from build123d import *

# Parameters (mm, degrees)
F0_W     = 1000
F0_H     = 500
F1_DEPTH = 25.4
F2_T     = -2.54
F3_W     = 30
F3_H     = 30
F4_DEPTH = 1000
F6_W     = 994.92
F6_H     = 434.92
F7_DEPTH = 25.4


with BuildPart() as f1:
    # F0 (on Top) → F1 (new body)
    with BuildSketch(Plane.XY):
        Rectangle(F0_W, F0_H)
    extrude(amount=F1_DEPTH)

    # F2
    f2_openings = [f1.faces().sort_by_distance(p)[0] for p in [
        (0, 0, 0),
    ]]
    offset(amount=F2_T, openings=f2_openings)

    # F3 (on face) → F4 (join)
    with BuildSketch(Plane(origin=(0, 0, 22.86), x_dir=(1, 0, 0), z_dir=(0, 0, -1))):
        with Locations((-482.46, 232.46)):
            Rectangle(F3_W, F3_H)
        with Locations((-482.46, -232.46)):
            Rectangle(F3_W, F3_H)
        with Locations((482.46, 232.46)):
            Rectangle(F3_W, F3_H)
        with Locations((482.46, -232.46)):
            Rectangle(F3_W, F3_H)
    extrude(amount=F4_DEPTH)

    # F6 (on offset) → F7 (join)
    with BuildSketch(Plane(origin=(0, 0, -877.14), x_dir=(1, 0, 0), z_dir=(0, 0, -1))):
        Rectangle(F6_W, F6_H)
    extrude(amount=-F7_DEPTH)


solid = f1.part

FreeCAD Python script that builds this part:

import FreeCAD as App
import Part
import Sketcher
from FreeCAD import Vector
Q = App.Units.Quantity


def faces_at(feature, points):
    """Names of the faces that lie closest to the given points."""
    faces = feature.Shape.Faces
    near = lambda p: min(range(len(faces)), key=lambda i: faces[i].distToShape(Part.Vertex(*p))[0])
    return sorted({f"Face{near(p) + 1}" for p in points})


def add_polygon(sketch, points):
    """Adds a closed chain of lines whose ends are joined by coincident constraints."""
    first, n = sketch.GeometryCount, len(points)
    for a, b in zip(points, points[1:] + points[:1]):
        sketch.addGeometry(Part.LineSegment(App.Vector(*a, 0), App.Vector(*b, 0)), False)
    for i in range(n):
        sketch.addConstraint(Sketcher.Constraint("Coincident", first + i, 2, first + (i + 1) % n, 1))

doc = App.newDocument("Part")
body = doc.addObject("PartDesign::Body", "Body")

sketch1 = body.newObject("Sketcher::SketchObject", "Sketch")
sketch1.AttachmentSupport = (doc.getObject("XY_Plane"), [""])
sketch1.MapMode = "FlatFace"
add_polygon(sketch1, [(-500, 250), (-500, -250), (500, -250), (500, 250)])
sketch1.addConstraint([
    Sketcher.Constraint("Vertical", 0),
    Sketcher.Constraint("Horizontal", 1),
    Sketcher.Constraint("Vertical", 2),
    Sketcher.Constraint("Horizontal", 3),
    Sketcher.Constraint("Symmetric", 0, 2, 2, 2, -1, 1),
    Sketcher.Constraint("DistanceX", 1, 1, 1, 2, Q("1000 mm")),
    Sketcher.Constraint("DistanceY", 0, 2, 0, 1, Q("500 mm")),
])
pad1 = body.newObject("PartDesign::Pad", "Pad")
pad1.Profile = sketch1
pad1.Length = 25.4
doc.recompute()

thickness = body.newObject("PartDesign::Thickness", "Thickness")
thickness.Base = (pad1, faces_at(pad1, [(0, 0, 0)]))
thickness.Value = 2.54
thickness.Reversed = True
thickness.Join = "Arc"

sketch2 = body.newObject("Sketcher::SketchObject", "Sketch001")
sketch2.AttachmentSupport = (doc.getObject("XY_Plane"), [""])
sketch2.MapMode = "FlatFace"
sketch2.AttachmentOffset = App.Placement(Vector(0, 0, 22.86), App.Rotation())
add_polygon(sketch2, [(-497.46, -247.46), (-497.46, -217.46), (-467.46, -217.46), (-467.46, -247.46)])
add_polygon(sketch2, [(-497.46, 217.46), (-497.46, 247.46), (-467.46, 247.46), (-467.46, 217.46)])
add_polygon(sketch2, [(467.46, -247.46), (467.46, -217.46), (497.46, -217.46), (497.46, -247.46)])
add_polygon(sketch2, [(467.46, 217.46), (467.46, 247.46), (497.46, 247.46), (497.46, 217.46)])
sketch2.addConstraint([
    Sketcher.Constraint("Vertical", 0),
    Sketcher.Constraint("Horizontal", 1),
    Sketcher.Constraint("Vertical", 2),
    Sketcher.Constraint("Horizontal", 3),
    Sketcher.Constraint("Vertical", 4),
    Sketcher.Constraint("Horizontal", 5),
    Sketcher.Constraint("Vertical", 6),
    Sketcher.Constraint("Horizontal", 7),
    Sketcher.Constraint("Vertical", 8),
    Sketcher.Constraint("Horizontal", 9),
    Sketcher.Constraint("Vertical", 10),
    Sketcher.Constraint("Horizontal", 11),
    Sketcher.Constraint("Vertical", 12),
    Sketcher.Constraint("Horizontal", 13),
    Sketcher.Constraint("Vertical", 14),
    Sketcher.Constraint("Horizontal", 15),
    Sketcher.Constraint("Symmetric", 6, 2, 8, 2, -1, 1),
    Sketcher.Constraint("Symmetric", 4, 2, 10, 2, -1, 1),
    Sketcher.Constraint("Symmetric", 2, 2, 12, 2, -1, 1),
    Sketcher.Constraint("Symmetric", 0, 2, 14, 2, -1, 1),
    Sketcher.Constraint("Symmetric", 1, 2, 8, 2, -2),
    Sketcher.Constraint("Symmetric", 3, 2, 10, 2, -2),
    Sketcher.Constraint("Equal", 15, 0),
    Sketcher.Constraint("DistanceX", 1, 1, 1, 2, Q("30 mm")),
    Sketcher.Constraint("DistanceX", 0, 2, -1, 1, Q("497.46 mm")),
    Sketcher.Constraint("DistanceY", 0, 2, -1, 1, Q("217.46 mm")),
])
pad2 = body.newObject("PartDesign::Pad", "Pad001")
pad2.Profile = sketch2
pad2.Length = 1000
pad2.Reversed = True

sketch3 = body.newObject("Sketcher::SketchObject", "Sketch002")
sketch3.AttachmentSupport = (doc.getObject("XY_Plane"), [""])
sketch3.MapMode = "FlatFace"
sketch3.AttachmentOffset = App.Placement(Vector(0, 0, -877.14), App.Rotation())
add_polygon(sketch3, [(-497.46, -217.46), (-497.46, 217.46), (497.46, 217.46), (497.46, -217.46)])
sketch3.addConstraint([
    Sketcher.Constraint("Vertical", 0),
    Sketcher.Constraint("Horizontal", 1),
    Sketcher.Constraint("Vertical", 2),
    Sketcher.Constraint("Horizontal", 3),
    Sketcher.Constraint("Symmetric", 0, 2, 2, 2, -1, 1),
    Sketcher.Constraint("DistanceX", 1, 1, 1, 2, Q("994.92 mm")),
    Sketcher.Constraint("DistanceY", 0, 1, 0, 2, Q("434.92 mm")),
])
pad3 = body.newObject("PartDesign::Pad", "Pad002")
pad3.Profile = sketch3
pad3.Length = 25.4

doc.recompute()
